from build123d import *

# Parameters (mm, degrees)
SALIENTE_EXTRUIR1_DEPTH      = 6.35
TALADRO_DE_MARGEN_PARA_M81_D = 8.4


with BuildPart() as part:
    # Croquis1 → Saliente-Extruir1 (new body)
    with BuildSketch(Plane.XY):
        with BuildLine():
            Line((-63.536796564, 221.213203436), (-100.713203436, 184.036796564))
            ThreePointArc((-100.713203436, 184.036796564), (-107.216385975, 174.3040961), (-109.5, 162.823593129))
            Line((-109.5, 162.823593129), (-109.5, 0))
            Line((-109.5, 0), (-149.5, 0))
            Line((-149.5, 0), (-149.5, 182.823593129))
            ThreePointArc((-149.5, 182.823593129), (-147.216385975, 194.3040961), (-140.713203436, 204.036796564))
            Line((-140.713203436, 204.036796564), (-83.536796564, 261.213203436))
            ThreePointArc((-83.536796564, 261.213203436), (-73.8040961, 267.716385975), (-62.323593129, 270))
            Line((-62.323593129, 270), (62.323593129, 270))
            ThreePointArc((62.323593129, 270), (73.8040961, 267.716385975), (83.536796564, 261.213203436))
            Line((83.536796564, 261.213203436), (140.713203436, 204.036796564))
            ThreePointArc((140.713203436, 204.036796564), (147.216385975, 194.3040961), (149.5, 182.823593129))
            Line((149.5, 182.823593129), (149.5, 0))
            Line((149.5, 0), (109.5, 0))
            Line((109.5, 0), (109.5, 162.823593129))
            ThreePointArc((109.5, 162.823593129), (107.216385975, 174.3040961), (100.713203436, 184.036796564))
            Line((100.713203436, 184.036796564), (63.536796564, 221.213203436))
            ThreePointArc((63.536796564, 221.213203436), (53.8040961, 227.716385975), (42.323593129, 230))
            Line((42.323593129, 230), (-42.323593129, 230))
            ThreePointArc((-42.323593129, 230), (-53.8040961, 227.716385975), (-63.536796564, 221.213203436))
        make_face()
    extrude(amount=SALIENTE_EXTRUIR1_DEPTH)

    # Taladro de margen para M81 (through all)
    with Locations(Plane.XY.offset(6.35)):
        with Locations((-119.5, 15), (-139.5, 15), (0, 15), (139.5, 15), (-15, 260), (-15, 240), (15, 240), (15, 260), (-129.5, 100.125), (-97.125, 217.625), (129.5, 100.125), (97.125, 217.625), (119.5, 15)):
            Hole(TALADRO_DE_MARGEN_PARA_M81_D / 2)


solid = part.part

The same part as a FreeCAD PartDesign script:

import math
import FreeCAD as App
import Part
import Sketcher

V = App.Vector
Q = App.Units.Quantity

doc = App.newDocument("Part")
params = doc.addObject("Spreadsheet::Sheet", "Params")
for row, (alias, value) in enumerate([
    ("sketch1_radius", "30 mm"),
    ("sketch1_width", "40 mm"),
    ("pad1_length", "6.35 mm"),
    ("sketch2_diameter", "8.4 mm"),
    ("hole_diameter", "8.4 mm"),
], start=1):
    params.set(f"A{row}", alias)
    params.set(f"B{row}", "=" + value)
    params.setAlias(f"B{row}", alias)

body = doc.addObject("PartDesign::Body", "Body")

# Sketch on XY plane
sketch1 = body.newObject("Sketcher::SketchObject", "Sketch")
sketch1.AttachmentSupport = (doc.getObject("XY_Plane"), [""])
sketch1.MapMode = "FlatFace"
sketch1.addGeometry([
    Part.LineSegment(V(-101, 184, 0), V(-64, 221, 0)),  # 0
    Part.ArcOfCircle(Part.Circle(V(-42, 200, 0), V(0, 0, 1), 30), math.radians(90), math.radians(135)),  # 1
    Part.LineSegment(V(-42, 230, 0), V(42, 230, 0)),  # 2
    Part.ArcOfCircle(Part.Circle(V(42, 200, 0), V(0, 0, 1), 30), math.radians(45), math.radians(90)),  # 3
    Part.LineSegment(V(64, 221, 0), V(101, 184, 0)),  # 4
    Part.ArcOfCircle(Part.Circle(V(79, 163, 0), V(0, 0, 1), 30), math.radians(0), math.radians(45)),  # 5
    Part.LineSegment(V(110, 163, 0), V(110, 0, 0)),  # 6
    Part.LineSegment(V(110, 0, 0), V(150, 0, 0)),  # 7
    Part.LineSegment(V(150, 0, 0), V(150, 183, 0)),  # 8
    Part.ArcOfCircle(Part.Circle(V(119, 183, 0), V(0, 0, 1), 30), math.radians(0), math.radians(45)),  # 9
    Part.LineSegment(V(141, 204, 0), V(84, 261, 0)),  # 10
    Part.ArcOfCircle(Part.Circle(V(62, 240, 0), V(0, 0, 1), 30), math.radians(45), math.radians(90)),  # 11
    Part.LineSegment(V(62, 270, 0), V(-62, 270, 0)),  # 12
    Part.ArcOfCircle(Part.Circle(V(-62, 240, 0), V(0, 0, 1), 30), math.radians(90), math.radians(135)),  # 13
    Part.LineSegment(V(-84, 261, 0), V(-141, 204, 0)),  # 14
    Part.ArcOfCircle(Part.Circle(V(-119, 183, 0), V(0, 0, 1), 30), math.radians(135), math.radians(180)),  # 15
    Part.LineSegment(V(-150, 183, 0), V(-150, 0, 0)),  # 16
    Part.LineSegment(V(-150, 0, 0), V(-110, 0, 0)),  # 17
    Part.LineSegment(V(-110, 0, 0), V(-110, 163, 0)),  # 18
    Part.ArcOfCircle(Part.Circle(V(-79, 163, 0), V(0, 0, 1), 30), math.radians(135), math.radians(180)),  # 19
], False)
sketch1.addConstraint([
    Sketcher.Constraint("Tangent", 0, 2, 1, 2),
    Sketcher.Constraint("Tangent", 1, 1, 2, 1),
    Sketcher.Constraint("Tangent", 2, 2, 3, 2),
    Sketcher.Constraint("Tangent", 3, 1, 4, 1),
    Sketcher.Constraint("Tangent", 4, 2, 5, 2),
    Sketcher.Constraint("Tangent", 5, 1, 6, 1),
    Sketcher.Constraint("Coincident", 6, 2, 7, 1),
    Sketcher.Constraint("Coincident", 7, 2, 8, 1),
    Sketcher.Constraint("Tangent", 8, 2, 9, 1),
    Sketcher.Constraint("Tangent", 9, 2, 10, 1),
    Sketcher.Constraint("Tangent", 10, 2, 11, 1),
    Sketcher.Constraint("Tangent", 11, 2, 12, 1),
    Sketcher.Constraint("Tangent", 12, 2, 13, 1),
    Sketcher.Constraint("Tangent", 13, 2, 14, 1),
    Sketcher.Constraint("Tangent", 14, 2, 15, 1),
    Sketcher.Constraint("Tangent", 15, 2, 16, 1),
    Sketcher.Constraint("Coincident", 16, 2, 17, 1),
    Sketcher.Constraint("Coincident", 17, 2, 18, 1),
    Sketcher.Constraint("Tangent", 18, 2, 19, 2),
    Sketcher.Constraint("Tangent", 19, 1, 0, 1),
    Sketcher.Constraint("Horizontal", 2),
    Sketcher.Constraint("Vertical", 6),
    Sketcher.Constraint("Horizontal", 7),
    Sketcher.Constraint("Vertical", 8),
    Sketcher.Constraint("Horizontal", 12),
    Sketcher.Constraint("Vertical", 16),
    Sketcher.Constraint("Horizontal", 17),
    Sketcher.Constraint("Vertical", 18),
    Sketcher.Constraint("Equal", 1, 3),
    Sketcher.Constraint("Equal", 3, 5),
    Sketcher.Constraint("Equal", 5, 9),
    Sketcher.Constraint("Equal", 9, 11),
    Sketcher.Constraint("Equal", 11, 13),
    Sketcher.Constraint("Equal", 13, 15),
    Sketcher.Constraint("Equal", 15, 19),
    Sketcher.Constraint("Symmetric", 7, 2, 16, 2, -1, 1),
    Sketcher.Constraint("Symmetric", 5, 3, 19, 3, -2),
    Sketcher.Constraint("Symmetric", 10, 2, 13, 2, -2),
    Sketcher.Constraint("PointOnObject", 6, 2, -1),
    Sketcher.Constraint("Perpendicular", 0, 4),
    Sketcher.Constraint("Parallel", 4, 10),
    Sketcher.Constraint("Perpendicular", 10, 14),
    Sketcher.Constraint("Radius", 1, Q("30 mm")),
    Sketcher.Constraint("DistanceX", 7, 1, 7, 2, Q("40 mm")),
    Sketcher.Constraint("DistanceY", -1, 1, 1, 3, Q("200 mm")),
    Sketcher.Constraint("DistanceY", -1, 1, 11, 3, Q("240 mm")),
    Sketcher.Constraint("DistanceY", 5, 3, 9, 3, Q("20 mm")),
    Sketcher.Constraint("DistanceX", 15, 3, 5, 3, Q("199 mm")),
    Sketcher.Constraint("Distance", 0, Q("52.575379 mm")),
])
sketch1.setExpression("Constraints[42]", "Params.sketch1_radius")
sketch1.setExpression("Constraints[43]", "Params.sketch1_width")
pad1 = body.newObject("PartDesign::Pad", "Pad")
pad1.Profile = sketch1
pad1.setExpression("Length", "Params.pad1_length")

# Sketch on XY plane
sketch2 = body.newObject("Sketcher::SketchObject", "Sketch001")
sketch2.AttachmentSupport = (doc.getObject("XY_Plane"), [""])
sketch2.MapMode = "FlatFace"
sketch2.AttachmentOffset = App.Placement(V(0, 0, 6.35), App.Rotation())
sketch2.addGeometry([
    Part.Circle(V(-119.5, 15, 0), V(0, 0, 1), 4.2),  # 0
    Part.Circle(V(-139.5, 15, 0), V(0, 0, 1), 4.2),  # 1
    Part.Circle(V(0, 15, 0), V(0, 0, 1), 4.2),  # 2
    Part.Circle(V(139.5, 15, 0), V(0, 0, 1), 4.2),  # 3
    Part.Circle(V(-15, 260, 0), V(0, 0, 1), 4.2),  # 4
    Part.Circle(V(-15, 240, 0), V(0, 0, 1), 4.2),  # 5
    Part.Circle(V(15, 240, 0), V(0, 0, 1), 4.2),  # 6
    Part.Circle(V(15, 260, 0), V(0, 0, 1), 4.2),  # 7
    Part.Circle(V(-129.5, 100.1, 0), V(0, 0, 1), 4.2),  # 8
    Part.Circle(V(-97.1, 217.6, 0), V(0, 0, 1), 4.2),  # 9
    Part.Circle(V(129.5, 100.1, 0), V(0, 0, 1), 4.2),  # 10
    Part.Circle(V(97.1, 217.6, 0), V(0, 0, 1), 4.2),  # 11
    Part.Circle(V(119.5, 15, 0), V(0, 0, 1), 4.2),  # 12
], False)
sketch2.addConstraint([
    Sketcher.Constraint("Equal", 0, 1),
    Sketcher.Constraint("Equal", 1, 2),
    Sketcher.Constraint("Equal", 2, 3),
    Sketcher.Constraint("Equal", 3, 4),
    Sketcher.Constraint("Equal", 4, 5),
    Sketcher.Constraint("Equal", 5, 6),
    Sketcher.Constraint("Equal", 6, 7),
    Sketcher.Constraint("Equal", 7, 8),
    Sketcher.Constraint("Equal", 8, 9),
    Sketcher.Constraint("Equal", 9, 10),
    Sketcher.Constraint("Equal", 10, 11),
    Sketcher.Constraint("Equal", 11, 12),
    Sketcher.Constraint("Symmetric", 1, 3, 3, 3, -2),
    Sketcher.Constraint("Symmetric", 5, 3, 6, 3, -2),
    Sketcher.Constraint("Symmetric", 4, 3, 7, 3, -2),
    Sketcher.Constraint("Symmetric", 8, 3, 10, 3, -2),
    Sketcher.Constraint("Symmetric", 9, 3, 11, 3, -2),
    Sketcher.Constraint("Symmetric", 0, 3, 12, 3, -2),
    Sketcher.Constraint("PointOnObject", 2, 3, -2),
    Sketcher.Constraint("Horizontal", 0, 3, 1, 3),
    Sketcher.Constraint("Horizontal", 1, 3, 2, 3),
    Sketcher.Constraint("Vertical", 4, 3, 5, 3),
    Sketcher.Constraint("Diameter", 0, Q("8.4 mm")),
    Sketcher.Constraint("DistanceY", -1, 1, 0, 3, Q("15 mm")),
    Sketcher.Constraint("DistanceX", 4, 3, -1, 1, Q("15 mm")),
    Sketcher.Constraint("DistanceY", -1, 1, 4, 3, Q("260 mm")),
    Sketcher.Constraint("DistanceY", -1, 1, 5, 3, Q("240 mm")),
    Sketcher.Constraint("DistanceX", 1, 3, 0, 3, Q("20 mm")),
    Sketcher.Constraint("DistanceX", 0, 3, 3, 3, Q("259 mm")),
    Sketcher.Constraint("DistanceX", 8, 3, 0, 3, Q("10 mm")),
    Sketcher.Constraint("DistanceY", 8, 3, 9, 3, Q("117.5 mm")),
    Sketcher.Constraint("DistanceY", -1, 1, 8, 3, Q("100.125 mm")),
    Sketcher.Constraint("DistanceX", 9, 3, -1, 1, Q("97.125 mm")),
])
sketch2.setExpression("Constraints[22]", "Params.sketch2_diameter")
doc.recompute()
hole = body.newObject("PartDesign::Hole", "Hole")
hole.Profile = sketch2
hole.ThreadType = "None"
hole.setExpression("Diameter", "Params.hole_diameter")
hole.DepthType = "ThroughAll"

doc.recompute()
